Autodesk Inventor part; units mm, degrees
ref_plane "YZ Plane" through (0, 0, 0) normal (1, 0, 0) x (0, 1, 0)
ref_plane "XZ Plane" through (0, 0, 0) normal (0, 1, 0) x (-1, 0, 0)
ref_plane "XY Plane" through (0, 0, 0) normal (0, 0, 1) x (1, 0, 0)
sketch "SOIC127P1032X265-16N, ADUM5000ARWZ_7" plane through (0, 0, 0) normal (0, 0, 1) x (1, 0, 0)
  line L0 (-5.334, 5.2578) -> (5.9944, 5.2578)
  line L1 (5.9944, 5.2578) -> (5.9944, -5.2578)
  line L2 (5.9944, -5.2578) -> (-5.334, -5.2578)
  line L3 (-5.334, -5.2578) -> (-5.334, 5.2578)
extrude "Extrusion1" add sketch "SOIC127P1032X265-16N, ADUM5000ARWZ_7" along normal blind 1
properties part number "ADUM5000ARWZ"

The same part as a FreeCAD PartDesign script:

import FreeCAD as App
import Part
import Sketcher
Q = App.Units.Quantity


def add_polygon(sketch, points):
    """Adds a closed chain of lines whose ends are joined by coincident constraints."""
    first, n = sketch.GeometryCount, len(points)
    for a, b in zip(points, points[1:] + points[:1]):
        sketch.addGeometry(Part.LineSegment(App.Vector(*a, 0), App.Vector(*b, 0)), False)
    for i in range(n):
        sketch.addConstraint(Sketcher.Constraint("Coincident", first + i, 2, first + (i + 1) % n, 1))

doc = App.newDocument("Part")
params = doc.addObject("Spreadsheet::Sheet", "Params")
for row, (alias, value) in enumerate([
    ("sketch1_width", "0.446 in"),
    ("sketch1_height", "0.414 in"),
    ("pad1_length", "1 mm"),
], start=1):
    params.set(f"A{row}", alias)
    params.set(f"B{row}", "=" + value)
    params.setAlias(f"B{row}", alias)

body = doc.addObject("PartDesign::Body", "Body")

sketch1 = body.newObject("Sketcher::SketchObject", "Sketch")
sketch1.AttachmentSupport = (doc.getObject("XY_Plane"), [""])
sketch1.MapMode = "FlatFace"
add_polygon(sketch1, [(6, 5), (-5, 5), (-5, -5), (6, -5)])
sketch1.addConstraint(Sketcher.Constraint("Horizontal", 0))
sketch1.addConstraint(Sketcher.Constraint("Vertical", 1))
sketch1.addConstraint(Sketcher.Constraint("Horizontal", 2))
sketch1.addConstraint(Sketcher.Constraint("Vertical", 3))
sketch1.addConstraint(Sketcher.Constraint("DistanceX", 0, 2, 0, 1, Q("0.446 in")))
sketch1.addConstraint(Sketcher.Constraint("DistanceY", 1, 2, 1, 1, Q("0.414 in")))
sketch1.addConstraint(Sketcher.Constraint("DistanceX", 0, 2, -1, 1, Q("0.21 in")))
sketch1.addConstraint(Sketcher.Constraint("DistanceY", -1, 1, 0, 2, Q("0.207 in")))
sketch1.setExpression("Constraints[8]", "Params.sketch1_width")
sketch1.setExpression("Constraints[9]", "Params.sketch1_height")
pad1 = body.newObject("PartDesign::Pad", "Pad")
pad1.Profile = sketch1
pad1.setExpression("Length", "Params.pad1_length")

doc.recompute()
